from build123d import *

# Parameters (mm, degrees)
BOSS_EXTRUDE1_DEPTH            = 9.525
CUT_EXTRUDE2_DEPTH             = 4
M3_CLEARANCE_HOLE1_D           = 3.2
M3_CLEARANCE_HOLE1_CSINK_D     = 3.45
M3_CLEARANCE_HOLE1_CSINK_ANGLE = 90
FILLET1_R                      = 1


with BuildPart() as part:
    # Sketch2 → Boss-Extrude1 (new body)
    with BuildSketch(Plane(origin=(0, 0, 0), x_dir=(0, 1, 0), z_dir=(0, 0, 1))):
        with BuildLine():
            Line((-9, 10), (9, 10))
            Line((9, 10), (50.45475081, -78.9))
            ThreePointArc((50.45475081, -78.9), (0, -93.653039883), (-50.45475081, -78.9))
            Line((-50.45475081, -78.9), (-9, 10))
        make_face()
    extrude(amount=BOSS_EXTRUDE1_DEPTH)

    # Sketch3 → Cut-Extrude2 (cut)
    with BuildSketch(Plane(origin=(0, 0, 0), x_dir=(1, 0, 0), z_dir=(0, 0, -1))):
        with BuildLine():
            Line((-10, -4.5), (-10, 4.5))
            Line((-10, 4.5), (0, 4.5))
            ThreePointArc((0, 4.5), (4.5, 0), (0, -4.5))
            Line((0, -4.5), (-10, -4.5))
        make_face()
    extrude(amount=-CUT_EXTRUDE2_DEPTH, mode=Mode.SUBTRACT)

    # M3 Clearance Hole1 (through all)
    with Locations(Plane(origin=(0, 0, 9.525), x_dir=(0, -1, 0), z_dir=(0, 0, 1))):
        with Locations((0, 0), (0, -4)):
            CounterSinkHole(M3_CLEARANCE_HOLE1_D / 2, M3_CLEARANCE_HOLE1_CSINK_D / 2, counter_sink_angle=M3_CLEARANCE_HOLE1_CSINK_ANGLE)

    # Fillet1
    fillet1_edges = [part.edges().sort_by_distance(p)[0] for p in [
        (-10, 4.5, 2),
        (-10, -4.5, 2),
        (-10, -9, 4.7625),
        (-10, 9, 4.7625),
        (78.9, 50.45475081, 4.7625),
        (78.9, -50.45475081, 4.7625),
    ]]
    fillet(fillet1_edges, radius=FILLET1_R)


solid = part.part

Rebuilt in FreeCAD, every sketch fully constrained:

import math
import FreeCAD as App
import Part
import Sketcher
Q = App.Units.Quantity


def edges_at(feature, points):
    """Names of the edges that pass closest to the given points."""
    edges = feature.Shape.Edges
    near = lambda p: min(range(len(edges)), key=lambda i: edges[i].distToShape(Part.Vertex(*p))[0])
    return sorted({f"Edge{near(p) + 1}" for p in points})

doc = App.newDocument("Part")
params = doc.addObject("Spreadsheet::Sheet", "Params")
for row, (alias, value) in enumerate([
    ("sketch1_height", "18 mm"),
    ("pad1_length", "9.525 mm"),
    ("sketch2_radius", "4.5 mm"),
    ("sketch2_width", "10 mm"),
    ("pocket1_length", "4 mm"),
    ("sketch3_diameter", "3.2 mm"),
    ("hole_diameter", "3.2 mm"),
    ("hole_csink_diameter", "3.45 mm"),
    ("fillet_radius", "1 mm"),
], start=1):
    params.set(f"A{row}", alias)
    params.set(f"B{row}", "=" + value)
    params.setAlias(f"B{row}", alias)

body = doc.addObject("PartDesign::Body", "Body")

# Sketch on XY plane
sketch1 = body.newObject("Sketcher::SketchObject", "Sketch")
sketch1.AttachmentSupport = (doc.getObject("XY_Plane"), [""])
sketch1.MapMode = "FlatFace"
sketch1.addGeometry(Part.LineSegment(App.Vector(-10, 9, 0), App.Vector(-10, -9, 0)), False)
sketch1.addGeometry(Part.LineSegment(App.Vector(-10, -9, 0), App.Vector(78.9, -50.454751, 0)), False)
sketch1.addGeometry(Part.ArcOfCircle(Part.Circle(App.Vector(0, 0, 0), App.Vector(0, 0, 1), 93.65304), math.radians(-32.597988), math.radians(32.597988)), False)
sketch1.addGeometry(Part.LineSegment(App.Vector(78.9, 50.454751, 0), App.Vector(-10, 9, 0)), False)
sketch1.addConstraint(Sketcher.Constraint("Coincident", 0, 2, 1, 1))
sketch1.addConstraint(Sketcher.Constraint("Coincident", 1, 2, 2, 1))
sketch1.addConstraint(Sketcher.Constraint("Coincident", 2, 2, 3, 1))
sketch1.addConstraint(Sketcher.Constraint("Coincident", 3, 2, 0, 1))
sketch1.addConstraint(Sketcher.Constraint("Vertical", 0))
sketch1.addConstraint(Sketcher.Constraint("Coincident", 2, 3, -1, 1))
sketch1.addConstraint(Sketcher.Constraint("Vertical", 1, 2, 2, 2))
sketch1.addConstraint(Sketcher.Constraint("Equal", 1, 3))
sketch1.addConstraint(Sketcher.Constraint("DistanceY", 0, 2, 0, 1, 18.0))
sketch1.addConstraint(Sketcher.Constraint("Angle", 1, Q("-25 deg")))
sketch1.addConstraint(Sketcher.Constraint("DistanceX", 0, 2, -1, 1, 10.0))
sketch1.addConstraint(Sketcher.Constraint("DistanceX", -1, 1, 1, 2, 78.9))
sketch1.setExpression("Constraints[8]", "Params.sketch1_height")
pad1 = body.newObject("PartDesign::Pad", "Pad")
pad1.Profile = sketch1
pad1.setExpression("Length", "Params.pad1_length")

# Sketch on XY plane
sketch2 = body.newObject("Sketcher::SketchObject", "Sketch001")
sketch2.AttachmentSupport = (doc.getObject("XY_Plane"), [""])
sketch2.MapMode = "FlatFace"
sketch2.addGeometry(Part.LineSegment(App.Vector(-10, -4.5, 0), App.Vector(-10, 4.5, 0)), False)
sketch2.addGeometry(Part.LineSegment(App.Vector(-10, 4.5, 0), App.Vector(0, 4.5, 0)), False)
sketch2.addGeometry(Part.ArcOfCircle(Part.Circle(App.Vector(0, 0, 0), App.Vector(0, 0, 1), 4.5), math.radians(-90), math.radians(90)), False)
sketch2.addGeometry(Part.LineSegment(App.Vector(0, -4.5, 0), App.Vector(-10, -4.5, 0)), False)
sketch2.addConstraint(Sketcher.Constraint("Coincident", 0, 2, 1, 1))
sketch2.addConstraint(Sketcher.Constraint("Tangent", 1, 2, 2, 2))
sketch2.addConstraint(Sketcher.Constraint("Tangent", 2, 1, 3, 1))
sketch2.addConstraint(Sketcher.Constraint("Coincident", 3, 2, 0, 1))
sketch2.addConstraint(Sketcher.Constraint("Vertical", 0))
sketch2.addConstraint(Sketcher.Constraint("Horizontal", 1))
sketch2.addConstraint(Sketcher.Constraint("Horizontal", 3))
sketch2.addConstraint(Sketcher.Constraint("Coincident", 2, 3, -1, 1))
sketch2.addConstraint(Sketcher.Constraint("Radius", 2, 4.5))
sketch2.addConstraint(Sketcher.Constraint("DistanceX", 1, 1, 1, 2, 10.0))
sketch2.setExpression("Constraints[8]", "Params.sketch2_radius")
sketch2.setExpression("Constraints[9]", "Params.sketch2_width")
pocket1 = body.newObject("PartDesign::Pocket", "Pocket")
pocket1.Profile = sketch2
pocket1.setExpression("Length", "Params.pocket1_length")
pocket1.Reversed = True

# Sketch on XY plane
sketch3 = body.newObject("Sketcher::SketchObject", "Sketch002")
sketch3.AttachmentSupport = (doc.getObject("XY_Plane"), [""])
sketch3.MapMode = "FlatFace"
sketch3.AttachmentOffset = App.Placement(App.Vector(0, 0, 9.525), App.Rotation())
sketch3.addGeometry(Part.Circle(App.Vector(0, 0, 0), App.Vector(0, 0, 1), 1.6), False)
sketch3.addGeometry(Part.Circle(App.Vector(-4, 0, 0), App.Vector(0, 0, 1), 1.6), False)
sketch3.addConstraint(Sketcher.Constraint("Coincident", 0, 3, -1, 1))
sketch3.addConstraint(Sketcher.Constraint("Equal", 0, 1))
sketch3.addConstraint(Sketcher.Constraint("PointOnObject", 1, 3, -1))
sketch3.addConstraint(Sketcher.Constraint("Diameter", 0, 3.2))
sketch3.addConstraint(Sketcher.Constraint("DistanceX", 1, 3, -1, 1, 4.0))
sketch3.setExpression("Constraints[3]", "Params.sketch3_diameter")
doc.recompute()
hole = body.newObject("PartDesign::Hole", "Hole")
hole.Profile = sketch3
hole.ThreadType = "None"
hole.setExpression("Diameter", "Params.hole_diameter")
hole.DepthType = "ThroughAll"
hole.HoleCutType = "Countersink"
hole.setExpression("HoleCutDiameter", "Params.hole_csink_diameter")
hole.HoleCutCountersinkAngle = 90
doc.recompute()

fillet = body.newObject("PartDesign::Fillet", "Fillet")
fillet.Base = (hole, edges_at(hole, [
    (-10, 4.5, 2),
    (-10, -4.5, 2),
    (-10, -9, 4.763),
    (-10, 9, 4.763),
    (78.9, 50.455, 4.763),
    (78.9, -50.455, 4.763),
]))
fillet.setExpression("Radius", "Params.fillet_radius")

doc.recompute()
